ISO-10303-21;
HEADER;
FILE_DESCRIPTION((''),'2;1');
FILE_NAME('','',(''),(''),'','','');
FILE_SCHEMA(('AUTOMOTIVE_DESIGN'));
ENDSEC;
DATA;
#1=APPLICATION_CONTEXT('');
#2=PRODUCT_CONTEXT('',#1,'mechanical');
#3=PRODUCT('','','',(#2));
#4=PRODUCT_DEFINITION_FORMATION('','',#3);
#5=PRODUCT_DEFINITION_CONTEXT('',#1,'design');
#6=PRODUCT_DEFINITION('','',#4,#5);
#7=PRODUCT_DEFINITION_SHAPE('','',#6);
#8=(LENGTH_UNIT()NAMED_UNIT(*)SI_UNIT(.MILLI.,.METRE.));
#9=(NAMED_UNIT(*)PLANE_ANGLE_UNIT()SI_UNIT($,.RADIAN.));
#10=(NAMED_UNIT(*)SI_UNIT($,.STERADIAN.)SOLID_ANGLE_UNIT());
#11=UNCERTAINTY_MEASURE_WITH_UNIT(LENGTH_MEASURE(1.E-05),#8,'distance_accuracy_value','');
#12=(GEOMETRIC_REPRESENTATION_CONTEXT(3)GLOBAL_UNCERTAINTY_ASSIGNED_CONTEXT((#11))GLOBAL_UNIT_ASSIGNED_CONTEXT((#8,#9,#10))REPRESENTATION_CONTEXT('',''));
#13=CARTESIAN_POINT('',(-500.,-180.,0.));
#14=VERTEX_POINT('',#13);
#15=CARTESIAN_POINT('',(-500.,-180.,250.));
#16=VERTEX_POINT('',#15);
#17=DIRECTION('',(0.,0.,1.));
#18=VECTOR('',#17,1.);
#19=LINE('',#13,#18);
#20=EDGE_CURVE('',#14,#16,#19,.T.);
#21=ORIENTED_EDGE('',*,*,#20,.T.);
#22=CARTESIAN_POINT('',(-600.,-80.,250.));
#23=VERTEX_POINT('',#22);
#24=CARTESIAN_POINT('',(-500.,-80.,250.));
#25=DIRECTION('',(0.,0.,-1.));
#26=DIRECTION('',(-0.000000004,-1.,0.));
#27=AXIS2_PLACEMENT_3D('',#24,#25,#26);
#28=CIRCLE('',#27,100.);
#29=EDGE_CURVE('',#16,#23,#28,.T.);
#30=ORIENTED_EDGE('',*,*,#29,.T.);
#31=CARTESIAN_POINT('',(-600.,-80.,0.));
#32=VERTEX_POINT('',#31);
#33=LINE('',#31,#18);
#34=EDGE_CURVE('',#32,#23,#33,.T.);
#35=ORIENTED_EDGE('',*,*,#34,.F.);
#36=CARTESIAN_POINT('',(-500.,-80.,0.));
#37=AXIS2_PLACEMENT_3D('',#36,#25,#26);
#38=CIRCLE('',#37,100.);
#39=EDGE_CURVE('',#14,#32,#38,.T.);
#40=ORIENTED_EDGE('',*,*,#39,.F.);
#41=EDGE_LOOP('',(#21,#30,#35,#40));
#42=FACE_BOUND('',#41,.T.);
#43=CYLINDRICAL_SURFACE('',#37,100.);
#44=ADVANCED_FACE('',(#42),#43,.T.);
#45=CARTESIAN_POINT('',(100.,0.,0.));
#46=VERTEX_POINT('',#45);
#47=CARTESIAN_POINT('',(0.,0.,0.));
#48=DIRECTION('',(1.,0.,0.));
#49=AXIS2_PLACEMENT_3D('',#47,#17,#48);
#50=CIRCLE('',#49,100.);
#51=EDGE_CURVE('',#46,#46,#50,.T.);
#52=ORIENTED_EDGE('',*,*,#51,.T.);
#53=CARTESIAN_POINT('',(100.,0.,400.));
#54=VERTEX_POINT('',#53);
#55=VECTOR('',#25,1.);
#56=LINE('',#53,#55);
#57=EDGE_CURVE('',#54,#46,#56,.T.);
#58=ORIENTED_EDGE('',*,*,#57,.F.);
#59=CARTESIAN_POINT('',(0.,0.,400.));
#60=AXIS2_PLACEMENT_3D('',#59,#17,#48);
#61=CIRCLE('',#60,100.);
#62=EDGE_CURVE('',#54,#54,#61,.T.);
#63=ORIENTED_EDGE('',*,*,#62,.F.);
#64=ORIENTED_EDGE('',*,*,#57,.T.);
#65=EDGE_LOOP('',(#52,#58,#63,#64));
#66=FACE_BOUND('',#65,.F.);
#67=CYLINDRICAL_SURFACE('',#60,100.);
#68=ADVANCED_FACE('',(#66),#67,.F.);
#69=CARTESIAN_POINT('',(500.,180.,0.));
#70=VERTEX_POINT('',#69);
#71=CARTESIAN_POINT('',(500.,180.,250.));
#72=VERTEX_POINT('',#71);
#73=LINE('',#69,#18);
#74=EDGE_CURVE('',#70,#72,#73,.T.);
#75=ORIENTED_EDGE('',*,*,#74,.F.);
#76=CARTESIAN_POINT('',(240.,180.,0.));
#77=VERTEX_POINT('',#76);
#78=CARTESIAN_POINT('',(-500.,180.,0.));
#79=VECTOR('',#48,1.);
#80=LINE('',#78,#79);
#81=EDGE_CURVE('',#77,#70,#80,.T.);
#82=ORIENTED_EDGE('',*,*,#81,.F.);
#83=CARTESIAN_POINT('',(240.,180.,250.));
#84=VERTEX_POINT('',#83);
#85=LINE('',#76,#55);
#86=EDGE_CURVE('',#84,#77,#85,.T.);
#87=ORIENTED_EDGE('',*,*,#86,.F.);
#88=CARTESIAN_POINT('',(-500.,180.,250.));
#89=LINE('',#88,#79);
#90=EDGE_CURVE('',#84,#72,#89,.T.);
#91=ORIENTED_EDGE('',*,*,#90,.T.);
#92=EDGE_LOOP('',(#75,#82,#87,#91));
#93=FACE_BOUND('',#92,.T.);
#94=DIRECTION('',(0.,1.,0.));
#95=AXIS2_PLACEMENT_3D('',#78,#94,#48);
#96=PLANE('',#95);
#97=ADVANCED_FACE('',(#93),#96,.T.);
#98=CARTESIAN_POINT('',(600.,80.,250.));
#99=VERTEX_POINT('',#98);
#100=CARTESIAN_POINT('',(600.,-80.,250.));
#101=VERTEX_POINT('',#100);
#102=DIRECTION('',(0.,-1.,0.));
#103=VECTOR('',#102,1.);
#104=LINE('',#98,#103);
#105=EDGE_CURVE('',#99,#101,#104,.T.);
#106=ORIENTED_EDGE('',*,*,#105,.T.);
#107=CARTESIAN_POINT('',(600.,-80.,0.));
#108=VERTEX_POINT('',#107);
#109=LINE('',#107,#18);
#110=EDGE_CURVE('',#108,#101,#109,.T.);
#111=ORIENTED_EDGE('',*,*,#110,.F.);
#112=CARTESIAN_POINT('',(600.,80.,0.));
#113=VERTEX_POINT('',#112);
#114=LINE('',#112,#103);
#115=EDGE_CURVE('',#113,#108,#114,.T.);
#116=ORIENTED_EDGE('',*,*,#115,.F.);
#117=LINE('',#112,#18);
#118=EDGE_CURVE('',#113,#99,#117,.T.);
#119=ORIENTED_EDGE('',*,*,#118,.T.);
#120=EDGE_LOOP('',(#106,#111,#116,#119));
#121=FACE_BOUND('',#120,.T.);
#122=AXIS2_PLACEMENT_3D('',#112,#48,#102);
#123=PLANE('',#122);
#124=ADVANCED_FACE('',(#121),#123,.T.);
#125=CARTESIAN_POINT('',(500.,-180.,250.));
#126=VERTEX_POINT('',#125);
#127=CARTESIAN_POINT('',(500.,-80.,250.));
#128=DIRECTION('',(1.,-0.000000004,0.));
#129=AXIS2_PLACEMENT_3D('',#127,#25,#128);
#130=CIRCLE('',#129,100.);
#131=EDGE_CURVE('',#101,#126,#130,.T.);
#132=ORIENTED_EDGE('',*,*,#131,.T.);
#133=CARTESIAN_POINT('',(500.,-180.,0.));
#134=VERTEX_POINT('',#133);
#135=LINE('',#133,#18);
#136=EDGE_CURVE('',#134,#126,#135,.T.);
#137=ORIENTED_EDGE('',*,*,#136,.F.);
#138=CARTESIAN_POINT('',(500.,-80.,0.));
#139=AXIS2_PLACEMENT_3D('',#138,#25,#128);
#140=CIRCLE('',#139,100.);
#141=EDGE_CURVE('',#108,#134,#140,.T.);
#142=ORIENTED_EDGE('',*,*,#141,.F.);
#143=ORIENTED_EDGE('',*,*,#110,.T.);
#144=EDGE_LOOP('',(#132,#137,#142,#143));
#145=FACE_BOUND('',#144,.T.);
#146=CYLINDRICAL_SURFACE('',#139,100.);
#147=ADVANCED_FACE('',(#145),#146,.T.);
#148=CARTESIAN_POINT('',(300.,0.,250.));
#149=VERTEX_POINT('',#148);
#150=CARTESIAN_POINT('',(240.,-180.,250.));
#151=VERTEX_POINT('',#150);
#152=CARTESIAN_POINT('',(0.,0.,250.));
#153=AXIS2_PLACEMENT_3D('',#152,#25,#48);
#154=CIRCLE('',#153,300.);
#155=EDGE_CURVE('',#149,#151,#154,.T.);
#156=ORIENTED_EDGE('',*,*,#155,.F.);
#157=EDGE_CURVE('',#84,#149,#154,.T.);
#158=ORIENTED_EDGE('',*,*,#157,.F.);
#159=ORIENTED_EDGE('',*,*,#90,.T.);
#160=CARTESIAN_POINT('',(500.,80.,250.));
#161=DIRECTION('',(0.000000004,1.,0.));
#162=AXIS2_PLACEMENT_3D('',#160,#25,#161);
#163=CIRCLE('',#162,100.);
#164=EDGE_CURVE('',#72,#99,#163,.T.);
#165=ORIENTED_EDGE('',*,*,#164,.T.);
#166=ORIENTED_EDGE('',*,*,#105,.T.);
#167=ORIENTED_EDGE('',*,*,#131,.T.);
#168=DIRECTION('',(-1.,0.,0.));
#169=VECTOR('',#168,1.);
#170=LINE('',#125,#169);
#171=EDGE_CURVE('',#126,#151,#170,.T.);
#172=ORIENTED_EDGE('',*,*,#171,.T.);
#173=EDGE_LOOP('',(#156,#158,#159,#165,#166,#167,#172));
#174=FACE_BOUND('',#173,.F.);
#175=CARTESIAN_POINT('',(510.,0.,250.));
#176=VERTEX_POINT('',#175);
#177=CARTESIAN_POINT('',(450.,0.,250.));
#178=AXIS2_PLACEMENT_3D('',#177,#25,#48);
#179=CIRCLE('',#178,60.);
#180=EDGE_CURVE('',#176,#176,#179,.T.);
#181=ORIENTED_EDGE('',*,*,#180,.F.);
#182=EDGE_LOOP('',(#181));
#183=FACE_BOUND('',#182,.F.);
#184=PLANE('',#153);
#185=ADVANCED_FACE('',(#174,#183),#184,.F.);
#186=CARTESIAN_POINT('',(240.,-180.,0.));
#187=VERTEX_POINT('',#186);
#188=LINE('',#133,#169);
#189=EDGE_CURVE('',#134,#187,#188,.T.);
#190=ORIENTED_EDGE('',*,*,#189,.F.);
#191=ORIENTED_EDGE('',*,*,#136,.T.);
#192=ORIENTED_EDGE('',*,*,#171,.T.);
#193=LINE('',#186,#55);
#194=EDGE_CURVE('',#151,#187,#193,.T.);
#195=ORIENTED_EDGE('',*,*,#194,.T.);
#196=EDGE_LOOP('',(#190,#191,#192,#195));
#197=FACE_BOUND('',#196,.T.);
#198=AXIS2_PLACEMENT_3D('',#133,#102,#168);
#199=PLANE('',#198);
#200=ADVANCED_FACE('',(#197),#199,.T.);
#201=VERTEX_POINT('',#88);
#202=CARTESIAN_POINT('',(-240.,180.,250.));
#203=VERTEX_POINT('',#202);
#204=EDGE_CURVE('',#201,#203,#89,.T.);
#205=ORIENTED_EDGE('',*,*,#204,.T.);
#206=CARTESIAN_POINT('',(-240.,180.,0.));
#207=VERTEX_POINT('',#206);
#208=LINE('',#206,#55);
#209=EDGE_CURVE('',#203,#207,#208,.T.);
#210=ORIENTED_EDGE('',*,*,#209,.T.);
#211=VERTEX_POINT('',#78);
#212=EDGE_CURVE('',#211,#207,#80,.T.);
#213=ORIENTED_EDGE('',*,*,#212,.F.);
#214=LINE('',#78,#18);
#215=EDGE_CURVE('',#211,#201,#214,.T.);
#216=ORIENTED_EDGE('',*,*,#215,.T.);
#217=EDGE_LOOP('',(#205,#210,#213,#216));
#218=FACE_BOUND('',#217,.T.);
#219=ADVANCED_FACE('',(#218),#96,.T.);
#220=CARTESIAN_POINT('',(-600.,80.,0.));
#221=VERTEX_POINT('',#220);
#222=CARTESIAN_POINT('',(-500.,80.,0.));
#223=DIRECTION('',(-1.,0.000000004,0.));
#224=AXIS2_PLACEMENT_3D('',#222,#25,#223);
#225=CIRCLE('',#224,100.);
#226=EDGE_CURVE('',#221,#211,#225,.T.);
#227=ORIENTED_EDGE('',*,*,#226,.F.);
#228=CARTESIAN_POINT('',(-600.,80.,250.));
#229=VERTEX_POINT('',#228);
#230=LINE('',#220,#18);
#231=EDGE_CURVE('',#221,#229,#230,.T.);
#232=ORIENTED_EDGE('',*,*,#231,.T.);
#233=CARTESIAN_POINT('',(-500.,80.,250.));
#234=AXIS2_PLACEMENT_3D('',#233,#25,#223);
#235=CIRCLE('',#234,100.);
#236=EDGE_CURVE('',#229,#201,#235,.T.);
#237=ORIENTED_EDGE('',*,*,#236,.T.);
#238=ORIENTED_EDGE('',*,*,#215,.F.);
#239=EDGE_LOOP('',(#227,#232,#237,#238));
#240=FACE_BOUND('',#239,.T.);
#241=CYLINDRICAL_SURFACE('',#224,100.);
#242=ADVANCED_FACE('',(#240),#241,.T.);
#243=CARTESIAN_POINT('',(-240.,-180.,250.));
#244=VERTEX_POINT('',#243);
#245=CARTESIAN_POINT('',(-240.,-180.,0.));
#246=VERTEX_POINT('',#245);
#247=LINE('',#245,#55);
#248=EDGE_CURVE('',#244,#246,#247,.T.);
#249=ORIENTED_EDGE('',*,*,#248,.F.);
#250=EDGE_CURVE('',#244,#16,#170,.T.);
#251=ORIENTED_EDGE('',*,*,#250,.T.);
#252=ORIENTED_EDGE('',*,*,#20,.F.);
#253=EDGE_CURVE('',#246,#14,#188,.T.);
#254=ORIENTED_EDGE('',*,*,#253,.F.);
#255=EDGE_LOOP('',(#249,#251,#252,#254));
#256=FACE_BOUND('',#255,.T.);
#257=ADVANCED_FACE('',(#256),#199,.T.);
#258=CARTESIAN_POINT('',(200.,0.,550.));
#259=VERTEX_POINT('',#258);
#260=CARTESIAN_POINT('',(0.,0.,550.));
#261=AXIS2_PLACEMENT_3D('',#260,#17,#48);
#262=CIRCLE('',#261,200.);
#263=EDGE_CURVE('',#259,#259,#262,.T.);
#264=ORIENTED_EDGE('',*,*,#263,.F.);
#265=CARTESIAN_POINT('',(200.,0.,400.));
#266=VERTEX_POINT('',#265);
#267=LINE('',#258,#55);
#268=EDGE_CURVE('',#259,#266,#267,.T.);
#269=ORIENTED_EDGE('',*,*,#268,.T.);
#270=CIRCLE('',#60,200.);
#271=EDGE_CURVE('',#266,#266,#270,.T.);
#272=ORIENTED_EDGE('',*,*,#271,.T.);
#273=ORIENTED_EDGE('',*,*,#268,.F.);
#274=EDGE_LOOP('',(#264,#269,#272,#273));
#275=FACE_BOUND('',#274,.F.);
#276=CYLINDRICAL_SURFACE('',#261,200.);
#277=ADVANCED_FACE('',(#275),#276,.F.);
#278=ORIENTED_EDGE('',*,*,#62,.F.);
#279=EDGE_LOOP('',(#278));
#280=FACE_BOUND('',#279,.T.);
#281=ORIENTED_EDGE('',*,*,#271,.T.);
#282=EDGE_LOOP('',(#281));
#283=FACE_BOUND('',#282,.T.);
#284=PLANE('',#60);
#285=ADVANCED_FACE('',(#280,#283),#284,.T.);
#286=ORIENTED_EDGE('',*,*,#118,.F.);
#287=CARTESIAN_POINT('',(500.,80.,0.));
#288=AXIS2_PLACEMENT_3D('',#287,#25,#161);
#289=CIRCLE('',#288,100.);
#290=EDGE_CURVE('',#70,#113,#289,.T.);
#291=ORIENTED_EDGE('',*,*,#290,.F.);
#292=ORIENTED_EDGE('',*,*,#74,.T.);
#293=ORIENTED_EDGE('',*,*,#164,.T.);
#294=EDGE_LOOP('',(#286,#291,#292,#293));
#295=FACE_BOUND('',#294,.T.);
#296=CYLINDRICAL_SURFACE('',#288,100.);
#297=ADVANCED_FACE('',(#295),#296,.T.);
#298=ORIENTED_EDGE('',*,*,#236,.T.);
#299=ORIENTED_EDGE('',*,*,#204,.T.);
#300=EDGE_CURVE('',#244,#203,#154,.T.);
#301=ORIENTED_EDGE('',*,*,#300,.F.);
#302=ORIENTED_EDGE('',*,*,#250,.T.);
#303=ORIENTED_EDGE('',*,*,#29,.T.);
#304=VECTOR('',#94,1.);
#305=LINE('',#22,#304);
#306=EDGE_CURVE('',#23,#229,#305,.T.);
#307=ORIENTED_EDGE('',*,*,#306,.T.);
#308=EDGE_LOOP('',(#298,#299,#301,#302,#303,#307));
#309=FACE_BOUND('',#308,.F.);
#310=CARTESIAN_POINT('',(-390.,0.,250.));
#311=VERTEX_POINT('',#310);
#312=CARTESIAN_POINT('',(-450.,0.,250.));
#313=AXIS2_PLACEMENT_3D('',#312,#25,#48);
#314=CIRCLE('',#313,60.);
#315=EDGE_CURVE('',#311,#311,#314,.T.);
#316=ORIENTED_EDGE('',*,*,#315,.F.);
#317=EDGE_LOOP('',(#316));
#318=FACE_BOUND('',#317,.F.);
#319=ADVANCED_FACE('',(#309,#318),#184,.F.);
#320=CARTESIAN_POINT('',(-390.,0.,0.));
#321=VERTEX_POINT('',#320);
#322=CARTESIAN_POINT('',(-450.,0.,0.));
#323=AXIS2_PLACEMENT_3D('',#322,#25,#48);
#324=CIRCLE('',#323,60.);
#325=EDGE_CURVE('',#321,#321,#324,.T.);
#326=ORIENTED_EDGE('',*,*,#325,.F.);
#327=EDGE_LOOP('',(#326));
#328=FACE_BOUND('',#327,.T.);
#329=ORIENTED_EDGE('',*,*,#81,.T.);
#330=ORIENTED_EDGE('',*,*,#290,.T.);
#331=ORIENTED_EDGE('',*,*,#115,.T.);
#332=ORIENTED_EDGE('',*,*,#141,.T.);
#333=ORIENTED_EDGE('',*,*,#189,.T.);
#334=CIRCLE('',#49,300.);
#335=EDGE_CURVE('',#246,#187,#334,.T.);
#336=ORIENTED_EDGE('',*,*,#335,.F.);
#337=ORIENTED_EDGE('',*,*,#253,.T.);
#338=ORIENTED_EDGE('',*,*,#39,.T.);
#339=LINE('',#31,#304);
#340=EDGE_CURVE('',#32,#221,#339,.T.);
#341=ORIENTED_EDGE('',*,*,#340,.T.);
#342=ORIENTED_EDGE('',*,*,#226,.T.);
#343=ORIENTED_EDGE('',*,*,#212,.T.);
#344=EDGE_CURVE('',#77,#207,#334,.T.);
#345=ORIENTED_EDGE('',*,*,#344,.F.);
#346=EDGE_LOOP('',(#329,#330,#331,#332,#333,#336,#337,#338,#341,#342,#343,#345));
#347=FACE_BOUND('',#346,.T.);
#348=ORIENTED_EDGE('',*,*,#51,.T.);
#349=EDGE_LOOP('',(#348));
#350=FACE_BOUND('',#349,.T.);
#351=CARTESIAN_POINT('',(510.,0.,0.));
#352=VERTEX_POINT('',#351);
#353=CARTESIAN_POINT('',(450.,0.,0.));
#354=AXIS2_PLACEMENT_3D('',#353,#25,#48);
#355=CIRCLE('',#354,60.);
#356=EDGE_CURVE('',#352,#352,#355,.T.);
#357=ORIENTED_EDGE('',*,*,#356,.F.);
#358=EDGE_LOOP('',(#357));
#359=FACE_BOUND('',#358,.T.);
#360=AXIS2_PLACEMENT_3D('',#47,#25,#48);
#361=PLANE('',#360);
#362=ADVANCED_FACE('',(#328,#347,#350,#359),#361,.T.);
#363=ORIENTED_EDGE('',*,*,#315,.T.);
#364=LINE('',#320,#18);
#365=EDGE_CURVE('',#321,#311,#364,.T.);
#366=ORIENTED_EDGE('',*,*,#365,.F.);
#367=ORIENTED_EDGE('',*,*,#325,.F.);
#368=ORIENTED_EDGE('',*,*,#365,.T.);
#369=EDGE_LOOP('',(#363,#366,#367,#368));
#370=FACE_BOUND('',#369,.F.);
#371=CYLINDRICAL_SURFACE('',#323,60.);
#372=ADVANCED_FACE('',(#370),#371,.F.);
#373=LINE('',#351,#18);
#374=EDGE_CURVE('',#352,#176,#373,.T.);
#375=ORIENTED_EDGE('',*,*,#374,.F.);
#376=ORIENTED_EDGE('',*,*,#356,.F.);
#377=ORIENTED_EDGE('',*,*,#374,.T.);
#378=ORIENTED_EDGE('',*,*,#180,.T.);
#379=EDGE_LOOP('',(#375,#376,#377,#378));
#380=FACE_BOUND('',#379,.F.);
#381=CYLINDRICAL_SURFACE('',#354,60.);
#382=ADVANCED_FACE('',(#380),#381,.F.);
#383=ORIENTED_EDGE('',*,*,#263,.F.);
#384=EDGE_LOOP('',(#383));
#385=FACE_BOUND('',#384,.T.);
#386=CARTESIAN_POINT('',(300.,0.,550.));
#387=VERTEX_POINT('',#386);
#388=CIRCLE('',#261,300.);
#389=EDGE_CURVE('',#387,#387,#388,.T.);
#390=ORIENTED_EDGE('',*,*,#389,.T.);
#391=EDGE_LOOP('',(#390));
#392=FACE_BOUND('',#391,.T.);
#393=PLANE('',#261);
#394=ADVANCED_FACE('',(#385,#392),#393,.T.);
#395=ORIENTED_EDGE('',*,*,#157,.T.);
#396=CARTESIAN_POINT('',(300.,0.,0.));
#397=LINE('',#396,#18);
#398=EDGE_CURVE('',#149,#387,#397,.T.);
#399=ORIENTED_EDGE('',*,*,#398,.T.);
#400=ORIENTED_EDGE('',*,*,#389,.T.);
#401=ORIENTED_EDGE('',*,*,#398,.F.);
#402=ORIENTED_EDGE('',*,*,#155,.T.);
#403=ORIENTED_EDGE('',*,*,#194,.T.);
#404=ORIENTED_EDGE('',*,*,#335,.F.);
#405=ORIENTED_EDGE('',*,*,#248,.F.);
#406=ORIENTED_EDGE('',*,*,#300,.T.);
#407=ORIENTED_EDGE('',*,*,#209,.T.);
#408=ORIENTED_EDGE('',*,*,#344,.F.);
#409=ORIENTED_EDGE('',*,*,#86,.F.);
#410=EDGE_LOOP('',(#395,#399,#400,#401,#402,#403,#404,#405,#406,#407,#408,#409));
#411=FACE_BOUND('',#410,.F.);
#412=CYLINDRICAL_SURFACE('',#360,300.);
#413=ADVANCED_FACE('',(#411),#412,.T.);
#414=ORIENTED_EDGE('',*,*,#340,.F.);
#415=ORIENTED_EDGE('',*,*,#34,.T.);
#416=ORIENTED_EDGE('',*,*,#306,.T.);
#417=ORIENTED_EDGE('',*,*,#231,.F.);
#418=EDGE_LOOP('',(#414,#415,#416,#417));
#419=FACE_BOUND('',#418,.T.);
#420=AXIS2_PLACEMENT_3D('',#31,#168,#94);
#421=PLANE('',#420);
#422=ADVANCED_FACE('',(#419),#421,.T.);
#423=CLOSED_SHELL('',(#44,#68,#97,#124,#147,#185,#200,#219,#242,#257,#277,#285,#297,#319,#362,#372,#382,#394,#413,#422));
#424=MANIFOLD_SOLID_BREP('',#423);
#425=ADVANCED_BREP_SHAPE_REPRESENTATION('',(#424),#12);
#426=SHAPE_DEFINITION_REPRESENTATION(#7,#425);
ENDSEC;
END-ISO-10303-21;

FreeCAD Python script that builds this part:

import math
import FreeCAD as App
import Part
import Sketcher
from FreeCAD import Vector

doc = App.newDocument("Part")
body = doc.addObject("PartDesign::Body", "Body")

sketch1 = doc.addObject("Sketcher::SketchObject", "Sketch")
body.addObject(sketch1)
sketch1.AttachmentSupport = (doc.XY_Plane, [""])
sketch1.MapMode = "FlatFace"
sketch1.addGeometry(Part.Circle(Vector(0, 0, 0), Vector(0, 0, 1), 300), False)
sketch1.addConstraint([
    Sketcher.Constraint("Coincident", 0, 3, -1, 1),
    Sketcher.Constraint("Diameter", 0, 600.0),
])
pad1 = doc.addObject("PartDesign::Pad", "Pad")
body.addObject(pad1)
pad1.Profile = sketch1
pad1.Length = 550

sketch2 = doc.addObject("Sketcher::SketchObject", "Sketch001")
body.addObject(sketch2)
sketch2.AttachmentSupport = (doc.XY_Plane, [""])
sketch2.MapMode = "FlatFace"
sketch2.AttachmentOffset = App.Placement(Vector(0, 0, 550), App.Rotation())
sketch2.addGeometry(Part.Circle(Vector(0, 0, 0), Vector(0, 0, 1), 200), False)
sketch2.addConstraint([
    Sketcher.Constraint("Coincident", 0, 3, -1, 1),
    Sketcher.Constraint("Diameter", 0, 400.0),
])
pocket1 = doc.addObject("PartDesign::Pocket", "Pocket")
body.addObject(pocket1)
pocket1.Profile = sketch2
pocket1.Length = 150

sketch3 = doc.addObject("Sketcher::SketchObject", "Sketch002")
body.addObject(sketch3)
sketch3.AttachmentSupport = (doc.XY_Plane, [""])
sketch3.MapMode = "FlatFace"
sketch3.addGeometry([
    Part.ArcOfCircle(Part.Circle(Vector(500, -80, 0), Vector(0, 0, 1), 100), math.radians(-90), math.radians(0)),
    Part.LineSegment(Vector(500, -180, 0), Vector(-500, -180, 0)),
    Part.ArcOfCircle(Part.Circle(Vector(-500, -80, 0), Vector(0, 0, 1), 100), math.radians(-180), math.radians(-90)),
    Part.LineSegment(Vector(-600, -80, 0), Vector(-600, 80, 0)),
    Part.ArcOfCircle(Part.Circle(Vector(-500, 80, 0), Vector(0, 0, 1), 100), math.radians(90), math.radians(180)),
    Part.LineSegment(Vector(-500, 180, 0), Vector(500, 180, 0)),
    Part.ArcOfCircle(Part.Circle(Vector(500, 80, 0), Vector(0, 0, 1), 100), math.radians(0), math.radians(90)),
    Part.LineSegment(Vector(600, 80, 0), Vector(600, -80, 0)),
    Part.Circle(Vector(-450, 0, 0), Vector(0, 0, 1), 60),
    Part.Circle(Vector(450, 0, 0), Vector(0, 0, 1), 60),
], False)
sketch3.addConstraint([
    Sketcher.Constraint("Tangent", 0, 1, 1, 1),
    Sketcher.Constraint("Tangent", 1, 2, 2, 2),
    Sketcher.Constraint("Tangent", 2, 1, 3, 1),
    Sketcher.Constraint("Tangent", 3, 2, 4, 2),
    Sketcher.Constraint("Tangent", 4, 1, 5, 1),
    Sketcher.Constraint("Tangent", 5, 2, 6, 2),
    Sketcher.Constraint("Tangent", 6, 1, 7, 1),
    Sketcher.Constraint("Tangent", 7, 2, 0, 2),
    Sketcher.Constraint("Horizontal", 1),
    Sketcher.Constraint("Vertical", 3),
    Sketcher.Constraint("Horizontal", 5),
    Sketcher.Constraint("Vertical", 7),
    Sketcher.Constraint("Equal", 0, 2),
    Sketcher.Constraint("Equal", 2, 4),
    Sketcher.Constraint("Equal", 4, 6),
    Sketcher.Constraint("Equal", 8, 9),
    Sketcher.Constraint("Symmetric", 0, 3, 4, 3, -1, 1),
    Sketcher.Constraint("Symmetric", 8, 3, 9, 3, -1, 1),
    Sketcher.Constraint("PointOnObject", 8, 3, -1),
    Sketcher.Constraint("Diameter", 8, 120.0),
    Sketcher.Constraint("Radius", 0, 100.0),
    Sketcher.Constraint("DistanceX", 1, 2, 1, 1, 1000.0),
    Sketcher.Constraint("DistanceY", 3, 1, 3, 2, 160.0),
    Sketcher.Constraint("DistanceX", 8, 3, -1, 1, 450.0),
])
pad2 = doc.addObject("PartDesign::Pad", "Pad001")
body.addObject(pad2)
pad2.Profile = sketch3
pad2.Length = 250

sketch4 = doc.addObject("Sketcher::SketchObject", "Sketch003")
body.addObject(sketch4)
sketch4.AttachmentSupport = (doc.XY_Plane, [""])
sketch4.MapMode = "FlatFace"
sketch4.AttachmentOffset = App.Placement(Vector(0, 0, 400), App.Rotation())
sketch4.addGeometry(Part.Circle(Vector(0, 0, 0), Vector(0, 0, 1), 100), False)
sketch4.addConstraint([
    Sketcher.Constraint("Coincident", 0, 3, -1, 1),
    Sketcher.Constraint("Diameter", 0, 200.0),
])
pocket2 = doc.addObject("PartDesign::Pocket", "Pocket001")
body.addObject(pocket2)
pocket2.Profile = sketch4
pocket2.Type = "ThroughAll"

doc.recompute()
